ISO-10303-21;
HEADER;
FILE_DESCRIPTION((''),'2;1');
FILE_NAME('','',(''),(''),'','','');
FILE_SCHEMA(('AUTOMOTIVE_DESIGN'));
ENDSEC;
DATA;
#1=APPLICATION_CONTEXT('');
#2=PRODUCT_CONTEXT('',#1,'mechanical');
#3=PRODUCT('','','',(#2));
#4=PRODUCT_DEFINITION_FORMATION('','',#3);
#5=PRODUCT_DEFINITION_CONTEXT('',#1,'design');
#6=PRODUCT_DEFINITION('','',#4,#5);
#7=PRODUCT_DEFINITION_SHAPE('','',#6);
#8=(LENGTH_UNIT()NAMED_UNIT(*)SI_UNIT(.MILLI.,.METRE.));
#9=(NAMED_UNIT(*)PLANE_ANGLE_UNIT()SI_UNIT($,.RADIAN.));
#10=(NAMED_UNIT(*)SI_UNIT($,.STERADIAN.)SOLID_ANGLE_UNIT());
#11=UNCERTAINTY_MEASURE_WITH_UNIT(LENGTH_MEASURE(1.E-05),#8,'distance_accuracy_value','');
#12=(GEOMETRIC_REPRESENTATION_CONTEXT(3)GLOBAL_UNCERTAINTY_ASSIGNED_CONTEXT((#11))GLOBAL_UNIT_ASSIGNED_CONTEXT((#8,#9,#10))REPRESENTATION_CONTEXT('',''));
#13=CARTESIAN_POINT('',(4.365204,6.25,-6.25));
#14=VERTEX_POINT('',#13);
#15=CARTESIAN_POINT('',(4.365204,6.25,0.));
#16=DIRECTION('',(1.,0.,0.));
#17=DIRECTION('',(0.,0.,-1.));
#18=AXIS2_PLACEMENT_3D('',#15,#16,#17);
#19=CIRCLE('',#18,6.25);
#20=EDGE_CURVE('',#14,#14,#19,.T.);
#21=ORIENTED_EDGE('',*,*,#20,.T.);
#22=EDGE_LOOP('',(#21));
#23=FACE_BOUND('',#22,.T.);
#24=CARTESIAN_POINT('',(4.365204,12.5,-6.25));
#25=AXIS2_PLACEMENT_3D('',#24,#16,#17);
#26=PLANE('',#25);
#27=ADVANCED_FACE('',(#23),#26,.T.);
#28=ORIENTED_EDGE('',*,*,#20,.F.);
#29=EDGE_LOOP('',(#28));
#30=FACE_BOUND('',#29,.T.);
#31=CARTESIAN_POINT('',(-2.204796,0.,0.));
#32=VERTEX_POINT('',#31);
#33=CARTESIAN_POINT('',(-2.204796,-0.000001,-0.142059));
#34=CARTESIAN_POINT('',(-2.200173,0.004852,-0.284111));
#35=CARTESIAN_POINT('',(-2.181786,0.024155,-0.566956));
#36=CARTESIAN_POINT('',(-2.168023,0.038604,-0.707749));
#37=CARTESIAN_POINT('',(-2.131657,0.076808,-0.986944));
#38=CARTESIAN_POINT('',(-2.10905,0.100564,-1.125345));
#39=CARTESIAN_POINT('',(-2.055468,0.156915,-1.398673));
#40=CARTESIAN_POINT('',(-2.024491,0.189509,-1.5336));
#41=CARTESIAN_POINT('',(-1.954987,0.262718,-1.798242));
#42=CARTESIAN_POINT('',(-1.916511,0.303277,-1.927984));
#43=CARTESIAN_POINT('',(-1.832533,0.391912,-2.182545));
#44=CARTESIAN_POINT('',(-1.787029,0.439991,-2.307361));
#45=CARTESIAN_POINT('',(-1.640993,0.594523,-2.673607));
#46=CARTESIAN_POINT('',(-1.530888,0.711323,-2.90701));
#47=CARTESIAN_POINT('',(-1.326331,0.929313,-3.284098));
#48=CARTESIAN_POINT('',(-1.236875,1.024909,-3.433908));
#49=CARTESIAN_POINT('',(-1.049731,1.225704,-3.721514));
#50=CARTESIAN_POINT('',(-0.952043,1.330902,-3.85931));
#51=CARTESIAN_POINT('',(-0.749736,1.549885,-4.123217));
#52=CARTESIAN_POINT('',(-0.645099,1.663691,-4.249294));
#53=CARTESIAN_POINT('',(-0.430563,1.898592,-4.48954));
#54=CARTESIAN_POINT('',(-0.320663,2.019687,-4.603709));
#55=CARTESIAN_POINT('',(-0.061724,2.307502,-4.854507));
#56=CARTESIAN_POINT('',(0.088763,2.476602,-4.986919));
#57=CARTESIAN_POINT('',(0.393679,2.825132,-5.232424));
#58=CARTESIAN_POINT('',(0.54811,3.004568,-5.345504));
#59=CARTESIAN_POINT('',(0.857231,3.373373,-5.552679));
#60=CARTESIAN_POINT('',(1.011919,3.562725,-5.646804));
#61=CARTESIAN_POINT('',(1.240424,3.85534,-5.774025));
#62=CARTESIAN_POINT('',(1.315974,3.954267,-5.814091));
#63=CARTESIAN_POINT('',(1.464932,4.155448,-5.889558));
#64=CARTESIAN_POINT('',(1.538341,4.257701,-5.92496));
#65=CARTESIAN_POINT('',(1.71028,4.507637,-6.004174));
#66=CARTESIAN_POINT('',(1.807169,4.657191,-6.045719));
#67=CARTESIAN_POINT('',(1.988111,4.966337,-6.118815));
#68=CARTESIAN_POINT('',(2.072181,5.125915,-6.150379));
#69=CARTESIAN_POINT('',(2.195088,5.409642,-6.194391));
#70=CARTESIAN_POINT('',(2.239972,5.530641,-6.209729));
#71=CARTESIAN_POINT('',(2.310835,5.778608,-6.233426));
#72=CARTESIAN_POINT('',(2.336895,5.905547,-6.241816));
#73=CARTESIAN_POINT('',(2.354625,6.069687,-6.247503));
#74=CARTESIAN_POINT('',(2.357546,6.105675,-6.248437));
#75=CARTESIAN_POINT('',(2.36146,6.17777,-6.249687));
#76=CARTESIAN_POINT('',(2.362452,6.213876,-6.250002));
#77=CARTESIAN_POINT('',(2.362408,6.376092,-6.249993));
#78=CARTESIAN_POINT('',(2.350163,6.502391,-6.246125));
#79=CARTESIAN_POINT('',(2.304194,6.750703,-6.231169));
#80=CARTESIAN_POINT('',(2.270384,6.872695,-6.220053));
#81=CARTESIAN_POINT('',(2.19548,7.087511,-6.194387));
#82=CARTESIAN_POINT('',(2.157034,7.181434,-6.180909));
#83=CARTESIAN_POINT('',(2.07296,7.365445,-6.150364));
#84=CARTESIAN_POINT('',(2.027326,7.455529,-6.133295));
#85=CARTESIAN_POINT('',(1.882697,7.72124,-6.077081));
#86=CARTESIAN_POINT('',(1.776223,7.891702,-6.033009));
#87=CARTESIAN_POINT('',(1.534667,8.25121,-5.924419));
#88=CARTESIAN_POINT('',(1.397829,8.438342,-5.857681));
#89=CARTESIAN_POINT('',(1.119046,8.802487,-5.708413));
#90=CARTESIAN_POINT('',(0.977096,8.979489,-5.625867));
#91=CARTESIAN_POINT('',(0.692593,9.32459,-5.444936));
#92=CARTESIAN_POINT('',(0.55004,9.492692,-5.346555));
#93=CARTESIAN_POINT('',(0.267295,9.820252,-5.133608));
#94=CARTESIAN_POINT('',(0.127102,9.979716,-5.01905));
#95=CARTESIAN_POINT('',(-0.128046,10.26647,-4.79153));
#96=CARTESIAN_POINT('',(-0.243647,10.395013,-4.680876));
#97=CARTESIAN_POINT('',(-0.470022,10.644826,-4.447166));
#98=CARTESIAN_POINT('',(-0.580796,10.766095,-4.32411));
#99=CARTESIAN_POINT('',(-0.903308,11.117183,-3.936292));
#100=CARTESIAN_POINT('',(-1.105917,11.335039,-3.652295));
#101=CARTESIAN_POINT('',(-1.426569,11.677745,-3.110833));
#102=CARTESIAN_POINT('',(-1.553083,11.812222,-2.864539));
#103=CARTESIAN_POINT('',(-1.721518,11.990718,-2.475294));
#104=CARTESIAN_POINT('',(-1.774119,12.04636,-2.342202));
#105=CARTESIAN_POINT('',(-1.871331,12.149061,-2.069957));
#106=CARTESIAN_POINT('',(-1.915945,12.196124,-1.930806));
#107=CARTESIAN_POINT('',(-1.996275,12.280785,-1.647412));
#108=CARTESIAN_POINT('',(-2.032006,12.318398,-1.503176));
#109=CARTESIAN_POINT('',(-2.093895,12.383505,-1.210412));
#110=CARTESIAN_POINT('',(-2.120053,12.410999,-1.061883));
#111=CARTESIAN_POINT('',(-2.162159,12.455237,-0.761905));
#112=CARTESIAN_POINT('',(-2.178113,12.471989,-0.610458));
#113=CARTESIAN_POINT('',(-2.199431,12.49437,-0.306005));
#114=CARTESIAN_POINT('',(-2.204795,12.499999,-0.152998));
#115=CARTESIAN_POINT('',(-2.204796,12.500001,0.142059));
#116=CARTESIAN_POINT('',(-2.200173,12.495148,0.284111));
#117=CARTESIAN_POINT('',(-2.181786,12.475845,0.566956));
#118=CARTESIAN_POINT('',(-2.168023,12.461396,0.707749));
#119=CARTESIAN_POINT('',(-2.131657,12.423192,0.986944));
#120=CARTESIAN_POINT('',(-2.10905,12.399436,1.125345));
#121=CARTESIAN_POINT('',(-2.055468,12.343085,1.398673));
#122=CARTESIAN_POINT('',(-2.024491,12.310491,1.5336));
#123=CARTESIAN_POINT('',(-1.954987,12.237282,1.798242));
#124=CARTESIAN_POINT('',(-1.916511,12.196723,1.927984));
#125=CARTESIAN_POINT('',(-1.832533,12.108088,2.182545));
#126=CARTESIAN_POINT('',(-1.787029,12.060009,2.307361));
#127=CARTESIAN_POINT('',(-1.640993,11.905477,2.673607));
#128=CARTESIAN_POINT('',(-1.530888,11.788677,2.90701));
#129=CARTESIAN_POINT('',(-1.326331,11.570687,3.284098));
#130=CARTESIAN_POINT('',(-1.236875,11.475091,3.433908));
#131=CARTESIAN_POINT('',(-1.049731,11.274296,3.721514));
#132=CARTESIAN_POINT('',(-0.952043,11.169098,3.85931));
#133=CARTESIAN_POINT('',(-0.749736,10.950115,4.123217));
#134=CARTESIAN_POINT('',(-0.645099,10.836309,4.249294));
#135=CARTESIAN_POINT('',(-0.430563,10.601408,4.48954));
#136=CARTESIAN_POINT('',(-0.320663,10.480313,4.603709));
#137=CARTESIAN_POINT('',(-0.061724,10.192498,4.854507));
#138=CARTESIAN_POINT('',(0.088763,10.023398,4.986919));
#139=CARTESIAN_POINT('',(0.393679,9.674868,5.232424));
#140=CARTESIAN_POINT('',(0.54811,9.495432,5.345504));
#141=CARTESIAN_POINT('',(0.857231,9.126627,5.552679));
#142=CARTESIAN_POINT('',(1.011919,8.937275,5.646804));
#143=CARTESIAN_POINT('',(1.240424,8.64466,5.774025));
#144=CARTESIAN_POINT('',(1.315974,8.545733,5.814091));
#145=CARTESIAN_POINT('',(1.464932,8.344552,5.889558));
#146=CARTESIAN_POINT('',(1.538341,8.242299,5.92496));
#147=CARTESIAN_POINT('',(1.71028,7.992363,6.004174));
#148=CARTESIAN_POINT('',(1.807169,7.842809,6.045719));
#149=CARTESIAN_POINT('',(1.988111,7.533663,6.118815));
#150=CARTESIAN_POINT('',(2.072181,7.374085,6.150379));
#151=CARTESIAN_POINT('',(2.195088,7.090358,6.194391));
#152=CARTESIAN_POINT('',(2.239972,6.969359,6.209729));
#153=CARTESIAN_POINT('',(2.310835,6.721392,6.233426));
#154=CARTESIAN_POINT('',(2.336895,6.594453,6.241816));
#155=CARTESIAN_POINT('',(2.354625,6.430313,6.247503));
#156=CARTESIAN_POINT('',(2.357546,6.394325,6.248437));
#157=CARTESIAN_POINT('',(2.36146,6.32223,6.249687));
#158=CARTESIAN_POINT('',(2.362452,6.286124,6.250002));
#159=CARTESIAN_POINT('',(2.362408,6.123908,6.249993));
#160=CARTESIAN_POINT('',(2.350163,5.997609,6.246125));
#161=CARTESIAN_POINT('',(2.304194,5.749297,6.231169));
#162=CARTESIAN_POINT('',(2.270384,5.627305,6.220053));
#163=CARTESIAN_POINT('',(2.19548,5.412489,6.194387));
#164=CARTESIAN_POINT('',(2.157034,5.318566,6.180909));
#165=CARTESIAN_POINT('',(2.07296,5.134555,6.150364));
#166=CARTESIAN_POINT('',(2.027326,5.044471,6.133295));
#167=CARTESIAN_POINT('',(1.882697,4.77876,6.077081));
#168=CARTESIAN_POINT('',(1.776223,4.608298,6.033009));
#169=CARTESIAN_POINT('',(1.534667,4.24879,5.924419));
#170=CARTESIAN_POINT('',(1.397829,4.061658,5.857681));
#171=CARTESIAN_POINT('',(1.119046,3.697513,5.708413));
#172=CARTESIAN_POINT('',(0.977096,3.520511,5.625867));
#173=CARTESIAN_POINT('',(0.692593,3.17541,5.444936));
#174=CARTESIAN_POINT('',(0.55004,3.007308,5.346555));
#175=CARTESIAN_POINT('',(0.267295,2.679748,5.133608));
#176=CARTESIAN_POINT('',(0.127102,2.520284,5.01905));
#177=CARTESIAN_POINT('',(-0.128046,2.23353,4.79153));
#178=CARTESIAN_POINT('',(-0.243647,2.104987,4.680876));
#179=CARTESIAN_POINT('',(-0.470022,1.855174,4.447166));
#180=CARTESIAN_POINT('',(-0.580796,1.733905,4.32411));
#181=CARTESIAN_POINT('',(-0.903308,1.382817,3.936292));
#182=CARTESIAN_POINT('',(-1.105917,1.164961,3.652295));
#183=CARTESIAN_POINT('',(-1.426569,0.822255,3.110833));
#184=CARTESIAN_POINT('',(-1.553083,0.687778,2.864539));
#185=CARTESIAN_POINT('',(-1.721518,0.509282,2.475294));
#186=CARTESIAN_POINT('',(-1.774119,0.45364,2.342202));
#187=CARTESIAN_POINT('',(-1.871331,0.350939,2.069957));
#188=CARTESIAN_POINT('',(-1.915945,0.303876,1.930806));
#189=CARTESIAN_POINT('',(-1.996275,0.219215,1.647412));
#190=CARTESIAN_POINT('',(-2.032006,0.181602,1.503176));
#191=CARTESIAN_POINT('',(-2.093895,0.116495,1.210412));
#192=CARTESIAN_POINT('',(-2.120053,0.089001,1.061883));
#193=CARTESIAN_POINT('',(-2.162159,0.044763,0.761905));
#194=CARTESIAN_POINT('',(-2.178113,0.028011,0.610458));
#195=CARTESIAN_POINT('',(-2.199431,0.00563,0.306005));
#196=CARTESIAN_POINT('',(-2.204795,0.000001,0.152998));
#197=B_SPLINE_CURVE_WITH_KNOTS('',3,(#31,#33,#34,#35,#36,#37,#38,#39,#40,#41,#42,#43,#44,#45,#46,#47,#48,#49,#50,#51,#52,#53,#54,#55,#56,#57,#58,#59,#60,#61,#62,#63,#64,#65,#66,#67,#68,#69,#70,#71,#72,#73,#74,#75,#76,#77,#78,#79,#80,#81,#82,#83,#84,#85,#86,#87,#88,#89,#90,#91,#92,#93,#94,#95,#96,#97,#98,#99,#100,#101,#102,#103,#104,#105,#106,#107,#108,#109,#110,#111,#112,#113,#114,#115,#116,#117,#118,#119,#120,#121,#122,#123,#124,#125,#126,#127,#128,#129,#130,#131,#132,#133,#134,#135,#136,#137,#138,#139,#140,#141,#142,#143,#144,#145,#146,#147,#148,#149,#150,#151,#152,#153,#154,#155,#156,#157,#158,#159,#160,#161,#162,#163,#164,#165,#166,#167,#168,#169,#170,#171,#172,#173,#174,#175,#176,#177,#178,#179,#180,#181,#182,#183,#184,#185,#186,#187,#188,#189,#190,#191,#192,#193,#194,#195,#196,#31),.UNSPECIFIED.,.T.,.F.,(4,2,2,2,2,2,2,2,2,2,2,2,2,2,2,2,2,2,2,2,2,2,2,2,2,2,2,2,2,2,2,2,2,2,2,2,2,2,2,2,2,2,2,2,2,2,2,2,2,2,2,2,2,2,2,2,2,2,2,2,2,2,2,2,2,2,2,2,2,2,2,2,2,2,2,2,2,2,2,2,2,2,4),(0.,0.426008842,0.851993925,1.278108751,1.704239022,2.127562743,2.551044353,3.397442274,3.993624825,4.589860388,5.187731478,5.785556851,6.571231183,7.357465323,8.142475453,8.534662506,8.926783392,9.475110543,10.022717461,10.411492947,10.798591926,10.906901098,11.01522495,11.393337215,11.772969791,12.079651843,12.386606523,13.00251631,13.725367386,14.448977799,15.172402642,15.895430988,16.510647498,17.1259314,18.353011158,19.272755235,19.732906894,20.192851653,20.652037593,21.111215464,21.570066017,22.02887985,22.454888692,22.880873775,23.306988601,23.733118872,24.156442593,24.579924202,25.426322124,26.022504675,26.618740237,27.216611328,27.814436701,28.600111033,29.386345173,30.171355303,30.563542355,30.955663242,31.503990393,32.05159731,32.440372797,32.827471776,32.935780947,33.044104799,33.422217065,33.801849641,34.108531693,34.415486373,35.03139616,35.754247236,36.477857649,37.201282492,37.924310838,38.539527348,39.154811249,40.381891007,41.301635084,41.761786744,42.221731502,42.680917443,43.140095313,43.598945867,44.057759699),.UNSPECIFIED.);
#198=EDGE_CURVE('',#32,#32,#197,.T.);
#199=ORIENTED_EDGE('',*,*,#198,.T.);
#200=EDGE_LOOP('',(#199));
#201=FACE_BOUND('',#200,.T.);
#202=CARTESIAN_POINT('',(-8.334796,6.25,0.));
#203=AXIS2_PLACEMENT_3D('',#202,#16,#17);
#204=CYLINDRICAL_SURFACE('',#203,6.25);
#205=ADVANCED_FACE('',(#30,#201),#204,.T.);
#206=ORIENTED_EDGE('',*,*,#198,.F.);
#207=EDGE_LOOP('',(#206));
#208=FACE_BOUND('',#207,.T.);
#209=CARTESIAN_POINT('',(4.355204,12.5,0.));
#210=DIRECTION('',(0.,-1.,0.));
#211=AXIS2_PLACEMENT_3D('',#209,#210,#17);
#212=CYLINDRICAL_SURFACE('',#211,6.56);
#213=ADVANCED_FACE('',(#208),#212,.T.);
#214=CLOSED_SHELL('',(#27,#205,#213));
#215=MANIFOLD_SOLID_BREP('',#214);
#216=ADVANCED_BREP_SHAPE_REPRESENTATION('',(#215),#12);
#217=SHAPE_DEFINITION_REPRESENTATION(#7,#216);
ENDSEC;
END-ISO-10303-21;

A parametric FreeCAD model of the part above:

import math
import FreeCAD as App
import Part
import Sketcher
from FreeCAD import Vector
Q = App.Units.Quantity

doc = App.newDocument("Part")
params = doc.addObject("Spreadsheet::Sheet", "Params")
for row, (alias, value) in enumerate([
    ("sketch1_radius", "6.56 mm"),
    ("sketch1_height", "12.5 mm"),
    ("pad1_length", "12.5 mm"),
    ("sketch2_radius", "6.25 mm"),
    ("pocket1_length", "12.7 mm"),
], start=1):
    params.set(f"A{row}", alias)
    params.set(f"B{row}", "=" + value)
    params.setAlias(f"B{row}", alias)

body = doc.addObject("PartDesign::Body", "Body")

# Sketch on XZ plane
sketch1 = body.newObject("Sketcher::SketchObject", "Sketch")
sketch1.AttachmentSupport = (doc.getObject("XZ_Plane"), [""])
sketch1.MapMode = "FlatFace"
sketch1.addGeometry([
    Part.LineSegment(Vector(4.4, -6.2, 0), Vector(2.4, -6.2, 0)),
    Part.ArcOfCircle(Part.Circle(Vector(4.4, 0, 0), Vector(0, 0, 1), 6.6), math.radians(108), math.radians(252)),
    Part.LineSegment(Vector(2.4, 6.2, 0), Vector(4.4, 6.2, 0)),
    Part.LineSegment(Vector(4.4, 6.2, 0), Vector(4.4, -6.2, 0)),
], False)
sketch1.addConstraint([
    Sketcher.Constraint("Coincident", 0, 2, 1, 2),
    Sketcher.Constraint("Coincident", 1, 1, 2, 1),
    Sketcher.Constraint("Coincident", 2, 2, 3, 1),
    Sketcher.Constraint("Coincident", 3, 2, 0, 1),
    Sketcher.Constraint("Horizontal", 0),
    Sketcher.Constraint("Horizontal", 2),
    Sketcher.Constraint("Vertical", 3),
    Sketcher.Constraint("Symmetric", 0, 2, 1, 1, -1),
    Sketcher.Constraint("Radius", 1, Q("6.56 mm")),
    Sketcher.Constraint("DistanceY", 3, 2, 3, 1, Q("12.5 mm")),
    Sketcher.Constraint("DistanceX", 1, 3, 2, 2, Q("0.01 mm")),
    Sketcher.Constraint("DistanceX", -1, 1, 1, 3, Q("4.355204 mm")),
])
sketch1.setExpression("Constraints[8]", "Params.sketch1_radius")
sketch1.setExpression("Constraints[9]", "Params.sketch1_height")
pad1 = body.newObject("PartDesign::Pad", "Pad")
pad1.Profile = sketch1
pad1.setExpression("Length", "Params.pad1_length")
pad1.Reversed = True

# Sketch on YZ plane
sketch2 = body.newObject("Sketcher::SketchObject", "Sketch001")
sketch2.AttachmentSupport = (doc.getObject("YZ_Plane"), [""])
sketch2.MapMode = "FlatFace"
sketch2.AttachmentOffset = App.Placement(Vector(0, 0, 4.365204), App.Rotation())
sketch2.addGeometry([
    Part.LineSegment(Vector(12, 6, 0), Vector(6, 6, 0)),  # 0
    Part.ArcOfCircle(Part.Circle(Vector(6, 0, 0), Vector(0, 0, 1), 6), math.radians(0), math.radians(90)),  # 1
    Part.LineSegment(Vector(12, 0, 0), Vector(12, 6, 0)),  # 2
    Part.ArcOfCircle(Part.Circle(Vector(6, 0, 0), Vector(0, 0, 1), 6), math.radians(-90), math.radians(0)),  # 3
    Part.LineSegment(Vector(6, -6, 0), Vector(12, -6, 0)),  # 4
    Part.LineSegment(Vector(12, -6, 0), Vector(12, 0, 0)),  # 5
    Part.ArcOfCircle(Part.Circle(Vector(6, 0, 0), Vector(0, 0, 1), 6), math.radians(-180), math.radians(-90)),  # 6
    Part.LineSegment(Vector(0, 0, 0), Vector(0, -6, 0)),  # 7
    Part.LineSegment(Vector(0, -6, 0), Vector(6, -6, 0)),  # 8
    Part.LineSegment(Vector(6, 6, 0), Vector(0, 6, 0)),  # 9
    Part.LineSegment(Vector(0, 6, 0), Vector(0, 0, 0)),  # 10
    Part.ArcOfCircle(Part.Circle(Vector(6, 0, 0), Vector(0, 0, 1), 6), math.radians(90), math.radians(180)),  # 11
], False)
sketch2.addConstraint([
    Sketcher.Constraint("Tangent", 0, 2, 1, 2),
    Sketcher.Constraint("Tangent", 1, 1, 2, 1),
    Sketcher.Constraint("Coincident", 2, 2, 0, 1),
    Sketcher.Constraint("Tangent", 3, 1, 4, 1),
    Sketcher.Constraint("Coincident", 4, 2, 5, 1),
    Sketcher.Constraint("Tangent", 5, 2, 3, 2),
    Sketcher.Constraint("Tangent", 6, 1, 7, 1),
    Sketcher.Constraint("Coincident", 7, 2, 8, 1),
    Sketcher.Constraint("Tangent", 8, 2, 6, 2),
    Sketcher.Constraint("Coincident", 9, 2, 10, 1),
    Sketcher.Constraint("Tangent", 10, 2, 11, 2),
    Sketcher.Constraint("Tangent", 11, 1, 9, 1),
    Sketcher.Constraint("Horizontal", 0),
    Sketcher.Constraint("Vertical", 2),
    Sketcher.Constraint("Horizontal", 4),
    Sketcher.Constraint("Vertical", 5),
    Sketcher.Constraint("Vertical", 7),
    Sketcher.Constraint("Horizontal", 8),
    Sketcher.Constraint("Horizontal", 9),
    Sketcher.Constraint("Vertical", 10),
    Sketcher.Constraint("Coincident", 6, 1, -1, 1),
    Sketcher.Constraint("Coincident", 10, 2, -1, 1),
    Sketcher.Constraint("Coincident", 3, 3, 1, 3),
    Sketcher.Constraint("Coincident", 6, 3, 1, 3),
    Sketcher.Constraint("Coincident", 11, 1, 0, 2),
    Sketcher.Constraint("Equal", 1, 3),
    Sketcher.Constraint("Radius", 1, Q("6.25 mm")),
])
sketch2.setExpression("Constraints[26]", "Params.sketch2_radius")
pocket1 = body.newObject("PartDesign::Pocket", "Pocket")
pocket1.Profile = sketch2
pocket1.setExpression("Length", "Params.pocket1_length")

doc.recompute()
